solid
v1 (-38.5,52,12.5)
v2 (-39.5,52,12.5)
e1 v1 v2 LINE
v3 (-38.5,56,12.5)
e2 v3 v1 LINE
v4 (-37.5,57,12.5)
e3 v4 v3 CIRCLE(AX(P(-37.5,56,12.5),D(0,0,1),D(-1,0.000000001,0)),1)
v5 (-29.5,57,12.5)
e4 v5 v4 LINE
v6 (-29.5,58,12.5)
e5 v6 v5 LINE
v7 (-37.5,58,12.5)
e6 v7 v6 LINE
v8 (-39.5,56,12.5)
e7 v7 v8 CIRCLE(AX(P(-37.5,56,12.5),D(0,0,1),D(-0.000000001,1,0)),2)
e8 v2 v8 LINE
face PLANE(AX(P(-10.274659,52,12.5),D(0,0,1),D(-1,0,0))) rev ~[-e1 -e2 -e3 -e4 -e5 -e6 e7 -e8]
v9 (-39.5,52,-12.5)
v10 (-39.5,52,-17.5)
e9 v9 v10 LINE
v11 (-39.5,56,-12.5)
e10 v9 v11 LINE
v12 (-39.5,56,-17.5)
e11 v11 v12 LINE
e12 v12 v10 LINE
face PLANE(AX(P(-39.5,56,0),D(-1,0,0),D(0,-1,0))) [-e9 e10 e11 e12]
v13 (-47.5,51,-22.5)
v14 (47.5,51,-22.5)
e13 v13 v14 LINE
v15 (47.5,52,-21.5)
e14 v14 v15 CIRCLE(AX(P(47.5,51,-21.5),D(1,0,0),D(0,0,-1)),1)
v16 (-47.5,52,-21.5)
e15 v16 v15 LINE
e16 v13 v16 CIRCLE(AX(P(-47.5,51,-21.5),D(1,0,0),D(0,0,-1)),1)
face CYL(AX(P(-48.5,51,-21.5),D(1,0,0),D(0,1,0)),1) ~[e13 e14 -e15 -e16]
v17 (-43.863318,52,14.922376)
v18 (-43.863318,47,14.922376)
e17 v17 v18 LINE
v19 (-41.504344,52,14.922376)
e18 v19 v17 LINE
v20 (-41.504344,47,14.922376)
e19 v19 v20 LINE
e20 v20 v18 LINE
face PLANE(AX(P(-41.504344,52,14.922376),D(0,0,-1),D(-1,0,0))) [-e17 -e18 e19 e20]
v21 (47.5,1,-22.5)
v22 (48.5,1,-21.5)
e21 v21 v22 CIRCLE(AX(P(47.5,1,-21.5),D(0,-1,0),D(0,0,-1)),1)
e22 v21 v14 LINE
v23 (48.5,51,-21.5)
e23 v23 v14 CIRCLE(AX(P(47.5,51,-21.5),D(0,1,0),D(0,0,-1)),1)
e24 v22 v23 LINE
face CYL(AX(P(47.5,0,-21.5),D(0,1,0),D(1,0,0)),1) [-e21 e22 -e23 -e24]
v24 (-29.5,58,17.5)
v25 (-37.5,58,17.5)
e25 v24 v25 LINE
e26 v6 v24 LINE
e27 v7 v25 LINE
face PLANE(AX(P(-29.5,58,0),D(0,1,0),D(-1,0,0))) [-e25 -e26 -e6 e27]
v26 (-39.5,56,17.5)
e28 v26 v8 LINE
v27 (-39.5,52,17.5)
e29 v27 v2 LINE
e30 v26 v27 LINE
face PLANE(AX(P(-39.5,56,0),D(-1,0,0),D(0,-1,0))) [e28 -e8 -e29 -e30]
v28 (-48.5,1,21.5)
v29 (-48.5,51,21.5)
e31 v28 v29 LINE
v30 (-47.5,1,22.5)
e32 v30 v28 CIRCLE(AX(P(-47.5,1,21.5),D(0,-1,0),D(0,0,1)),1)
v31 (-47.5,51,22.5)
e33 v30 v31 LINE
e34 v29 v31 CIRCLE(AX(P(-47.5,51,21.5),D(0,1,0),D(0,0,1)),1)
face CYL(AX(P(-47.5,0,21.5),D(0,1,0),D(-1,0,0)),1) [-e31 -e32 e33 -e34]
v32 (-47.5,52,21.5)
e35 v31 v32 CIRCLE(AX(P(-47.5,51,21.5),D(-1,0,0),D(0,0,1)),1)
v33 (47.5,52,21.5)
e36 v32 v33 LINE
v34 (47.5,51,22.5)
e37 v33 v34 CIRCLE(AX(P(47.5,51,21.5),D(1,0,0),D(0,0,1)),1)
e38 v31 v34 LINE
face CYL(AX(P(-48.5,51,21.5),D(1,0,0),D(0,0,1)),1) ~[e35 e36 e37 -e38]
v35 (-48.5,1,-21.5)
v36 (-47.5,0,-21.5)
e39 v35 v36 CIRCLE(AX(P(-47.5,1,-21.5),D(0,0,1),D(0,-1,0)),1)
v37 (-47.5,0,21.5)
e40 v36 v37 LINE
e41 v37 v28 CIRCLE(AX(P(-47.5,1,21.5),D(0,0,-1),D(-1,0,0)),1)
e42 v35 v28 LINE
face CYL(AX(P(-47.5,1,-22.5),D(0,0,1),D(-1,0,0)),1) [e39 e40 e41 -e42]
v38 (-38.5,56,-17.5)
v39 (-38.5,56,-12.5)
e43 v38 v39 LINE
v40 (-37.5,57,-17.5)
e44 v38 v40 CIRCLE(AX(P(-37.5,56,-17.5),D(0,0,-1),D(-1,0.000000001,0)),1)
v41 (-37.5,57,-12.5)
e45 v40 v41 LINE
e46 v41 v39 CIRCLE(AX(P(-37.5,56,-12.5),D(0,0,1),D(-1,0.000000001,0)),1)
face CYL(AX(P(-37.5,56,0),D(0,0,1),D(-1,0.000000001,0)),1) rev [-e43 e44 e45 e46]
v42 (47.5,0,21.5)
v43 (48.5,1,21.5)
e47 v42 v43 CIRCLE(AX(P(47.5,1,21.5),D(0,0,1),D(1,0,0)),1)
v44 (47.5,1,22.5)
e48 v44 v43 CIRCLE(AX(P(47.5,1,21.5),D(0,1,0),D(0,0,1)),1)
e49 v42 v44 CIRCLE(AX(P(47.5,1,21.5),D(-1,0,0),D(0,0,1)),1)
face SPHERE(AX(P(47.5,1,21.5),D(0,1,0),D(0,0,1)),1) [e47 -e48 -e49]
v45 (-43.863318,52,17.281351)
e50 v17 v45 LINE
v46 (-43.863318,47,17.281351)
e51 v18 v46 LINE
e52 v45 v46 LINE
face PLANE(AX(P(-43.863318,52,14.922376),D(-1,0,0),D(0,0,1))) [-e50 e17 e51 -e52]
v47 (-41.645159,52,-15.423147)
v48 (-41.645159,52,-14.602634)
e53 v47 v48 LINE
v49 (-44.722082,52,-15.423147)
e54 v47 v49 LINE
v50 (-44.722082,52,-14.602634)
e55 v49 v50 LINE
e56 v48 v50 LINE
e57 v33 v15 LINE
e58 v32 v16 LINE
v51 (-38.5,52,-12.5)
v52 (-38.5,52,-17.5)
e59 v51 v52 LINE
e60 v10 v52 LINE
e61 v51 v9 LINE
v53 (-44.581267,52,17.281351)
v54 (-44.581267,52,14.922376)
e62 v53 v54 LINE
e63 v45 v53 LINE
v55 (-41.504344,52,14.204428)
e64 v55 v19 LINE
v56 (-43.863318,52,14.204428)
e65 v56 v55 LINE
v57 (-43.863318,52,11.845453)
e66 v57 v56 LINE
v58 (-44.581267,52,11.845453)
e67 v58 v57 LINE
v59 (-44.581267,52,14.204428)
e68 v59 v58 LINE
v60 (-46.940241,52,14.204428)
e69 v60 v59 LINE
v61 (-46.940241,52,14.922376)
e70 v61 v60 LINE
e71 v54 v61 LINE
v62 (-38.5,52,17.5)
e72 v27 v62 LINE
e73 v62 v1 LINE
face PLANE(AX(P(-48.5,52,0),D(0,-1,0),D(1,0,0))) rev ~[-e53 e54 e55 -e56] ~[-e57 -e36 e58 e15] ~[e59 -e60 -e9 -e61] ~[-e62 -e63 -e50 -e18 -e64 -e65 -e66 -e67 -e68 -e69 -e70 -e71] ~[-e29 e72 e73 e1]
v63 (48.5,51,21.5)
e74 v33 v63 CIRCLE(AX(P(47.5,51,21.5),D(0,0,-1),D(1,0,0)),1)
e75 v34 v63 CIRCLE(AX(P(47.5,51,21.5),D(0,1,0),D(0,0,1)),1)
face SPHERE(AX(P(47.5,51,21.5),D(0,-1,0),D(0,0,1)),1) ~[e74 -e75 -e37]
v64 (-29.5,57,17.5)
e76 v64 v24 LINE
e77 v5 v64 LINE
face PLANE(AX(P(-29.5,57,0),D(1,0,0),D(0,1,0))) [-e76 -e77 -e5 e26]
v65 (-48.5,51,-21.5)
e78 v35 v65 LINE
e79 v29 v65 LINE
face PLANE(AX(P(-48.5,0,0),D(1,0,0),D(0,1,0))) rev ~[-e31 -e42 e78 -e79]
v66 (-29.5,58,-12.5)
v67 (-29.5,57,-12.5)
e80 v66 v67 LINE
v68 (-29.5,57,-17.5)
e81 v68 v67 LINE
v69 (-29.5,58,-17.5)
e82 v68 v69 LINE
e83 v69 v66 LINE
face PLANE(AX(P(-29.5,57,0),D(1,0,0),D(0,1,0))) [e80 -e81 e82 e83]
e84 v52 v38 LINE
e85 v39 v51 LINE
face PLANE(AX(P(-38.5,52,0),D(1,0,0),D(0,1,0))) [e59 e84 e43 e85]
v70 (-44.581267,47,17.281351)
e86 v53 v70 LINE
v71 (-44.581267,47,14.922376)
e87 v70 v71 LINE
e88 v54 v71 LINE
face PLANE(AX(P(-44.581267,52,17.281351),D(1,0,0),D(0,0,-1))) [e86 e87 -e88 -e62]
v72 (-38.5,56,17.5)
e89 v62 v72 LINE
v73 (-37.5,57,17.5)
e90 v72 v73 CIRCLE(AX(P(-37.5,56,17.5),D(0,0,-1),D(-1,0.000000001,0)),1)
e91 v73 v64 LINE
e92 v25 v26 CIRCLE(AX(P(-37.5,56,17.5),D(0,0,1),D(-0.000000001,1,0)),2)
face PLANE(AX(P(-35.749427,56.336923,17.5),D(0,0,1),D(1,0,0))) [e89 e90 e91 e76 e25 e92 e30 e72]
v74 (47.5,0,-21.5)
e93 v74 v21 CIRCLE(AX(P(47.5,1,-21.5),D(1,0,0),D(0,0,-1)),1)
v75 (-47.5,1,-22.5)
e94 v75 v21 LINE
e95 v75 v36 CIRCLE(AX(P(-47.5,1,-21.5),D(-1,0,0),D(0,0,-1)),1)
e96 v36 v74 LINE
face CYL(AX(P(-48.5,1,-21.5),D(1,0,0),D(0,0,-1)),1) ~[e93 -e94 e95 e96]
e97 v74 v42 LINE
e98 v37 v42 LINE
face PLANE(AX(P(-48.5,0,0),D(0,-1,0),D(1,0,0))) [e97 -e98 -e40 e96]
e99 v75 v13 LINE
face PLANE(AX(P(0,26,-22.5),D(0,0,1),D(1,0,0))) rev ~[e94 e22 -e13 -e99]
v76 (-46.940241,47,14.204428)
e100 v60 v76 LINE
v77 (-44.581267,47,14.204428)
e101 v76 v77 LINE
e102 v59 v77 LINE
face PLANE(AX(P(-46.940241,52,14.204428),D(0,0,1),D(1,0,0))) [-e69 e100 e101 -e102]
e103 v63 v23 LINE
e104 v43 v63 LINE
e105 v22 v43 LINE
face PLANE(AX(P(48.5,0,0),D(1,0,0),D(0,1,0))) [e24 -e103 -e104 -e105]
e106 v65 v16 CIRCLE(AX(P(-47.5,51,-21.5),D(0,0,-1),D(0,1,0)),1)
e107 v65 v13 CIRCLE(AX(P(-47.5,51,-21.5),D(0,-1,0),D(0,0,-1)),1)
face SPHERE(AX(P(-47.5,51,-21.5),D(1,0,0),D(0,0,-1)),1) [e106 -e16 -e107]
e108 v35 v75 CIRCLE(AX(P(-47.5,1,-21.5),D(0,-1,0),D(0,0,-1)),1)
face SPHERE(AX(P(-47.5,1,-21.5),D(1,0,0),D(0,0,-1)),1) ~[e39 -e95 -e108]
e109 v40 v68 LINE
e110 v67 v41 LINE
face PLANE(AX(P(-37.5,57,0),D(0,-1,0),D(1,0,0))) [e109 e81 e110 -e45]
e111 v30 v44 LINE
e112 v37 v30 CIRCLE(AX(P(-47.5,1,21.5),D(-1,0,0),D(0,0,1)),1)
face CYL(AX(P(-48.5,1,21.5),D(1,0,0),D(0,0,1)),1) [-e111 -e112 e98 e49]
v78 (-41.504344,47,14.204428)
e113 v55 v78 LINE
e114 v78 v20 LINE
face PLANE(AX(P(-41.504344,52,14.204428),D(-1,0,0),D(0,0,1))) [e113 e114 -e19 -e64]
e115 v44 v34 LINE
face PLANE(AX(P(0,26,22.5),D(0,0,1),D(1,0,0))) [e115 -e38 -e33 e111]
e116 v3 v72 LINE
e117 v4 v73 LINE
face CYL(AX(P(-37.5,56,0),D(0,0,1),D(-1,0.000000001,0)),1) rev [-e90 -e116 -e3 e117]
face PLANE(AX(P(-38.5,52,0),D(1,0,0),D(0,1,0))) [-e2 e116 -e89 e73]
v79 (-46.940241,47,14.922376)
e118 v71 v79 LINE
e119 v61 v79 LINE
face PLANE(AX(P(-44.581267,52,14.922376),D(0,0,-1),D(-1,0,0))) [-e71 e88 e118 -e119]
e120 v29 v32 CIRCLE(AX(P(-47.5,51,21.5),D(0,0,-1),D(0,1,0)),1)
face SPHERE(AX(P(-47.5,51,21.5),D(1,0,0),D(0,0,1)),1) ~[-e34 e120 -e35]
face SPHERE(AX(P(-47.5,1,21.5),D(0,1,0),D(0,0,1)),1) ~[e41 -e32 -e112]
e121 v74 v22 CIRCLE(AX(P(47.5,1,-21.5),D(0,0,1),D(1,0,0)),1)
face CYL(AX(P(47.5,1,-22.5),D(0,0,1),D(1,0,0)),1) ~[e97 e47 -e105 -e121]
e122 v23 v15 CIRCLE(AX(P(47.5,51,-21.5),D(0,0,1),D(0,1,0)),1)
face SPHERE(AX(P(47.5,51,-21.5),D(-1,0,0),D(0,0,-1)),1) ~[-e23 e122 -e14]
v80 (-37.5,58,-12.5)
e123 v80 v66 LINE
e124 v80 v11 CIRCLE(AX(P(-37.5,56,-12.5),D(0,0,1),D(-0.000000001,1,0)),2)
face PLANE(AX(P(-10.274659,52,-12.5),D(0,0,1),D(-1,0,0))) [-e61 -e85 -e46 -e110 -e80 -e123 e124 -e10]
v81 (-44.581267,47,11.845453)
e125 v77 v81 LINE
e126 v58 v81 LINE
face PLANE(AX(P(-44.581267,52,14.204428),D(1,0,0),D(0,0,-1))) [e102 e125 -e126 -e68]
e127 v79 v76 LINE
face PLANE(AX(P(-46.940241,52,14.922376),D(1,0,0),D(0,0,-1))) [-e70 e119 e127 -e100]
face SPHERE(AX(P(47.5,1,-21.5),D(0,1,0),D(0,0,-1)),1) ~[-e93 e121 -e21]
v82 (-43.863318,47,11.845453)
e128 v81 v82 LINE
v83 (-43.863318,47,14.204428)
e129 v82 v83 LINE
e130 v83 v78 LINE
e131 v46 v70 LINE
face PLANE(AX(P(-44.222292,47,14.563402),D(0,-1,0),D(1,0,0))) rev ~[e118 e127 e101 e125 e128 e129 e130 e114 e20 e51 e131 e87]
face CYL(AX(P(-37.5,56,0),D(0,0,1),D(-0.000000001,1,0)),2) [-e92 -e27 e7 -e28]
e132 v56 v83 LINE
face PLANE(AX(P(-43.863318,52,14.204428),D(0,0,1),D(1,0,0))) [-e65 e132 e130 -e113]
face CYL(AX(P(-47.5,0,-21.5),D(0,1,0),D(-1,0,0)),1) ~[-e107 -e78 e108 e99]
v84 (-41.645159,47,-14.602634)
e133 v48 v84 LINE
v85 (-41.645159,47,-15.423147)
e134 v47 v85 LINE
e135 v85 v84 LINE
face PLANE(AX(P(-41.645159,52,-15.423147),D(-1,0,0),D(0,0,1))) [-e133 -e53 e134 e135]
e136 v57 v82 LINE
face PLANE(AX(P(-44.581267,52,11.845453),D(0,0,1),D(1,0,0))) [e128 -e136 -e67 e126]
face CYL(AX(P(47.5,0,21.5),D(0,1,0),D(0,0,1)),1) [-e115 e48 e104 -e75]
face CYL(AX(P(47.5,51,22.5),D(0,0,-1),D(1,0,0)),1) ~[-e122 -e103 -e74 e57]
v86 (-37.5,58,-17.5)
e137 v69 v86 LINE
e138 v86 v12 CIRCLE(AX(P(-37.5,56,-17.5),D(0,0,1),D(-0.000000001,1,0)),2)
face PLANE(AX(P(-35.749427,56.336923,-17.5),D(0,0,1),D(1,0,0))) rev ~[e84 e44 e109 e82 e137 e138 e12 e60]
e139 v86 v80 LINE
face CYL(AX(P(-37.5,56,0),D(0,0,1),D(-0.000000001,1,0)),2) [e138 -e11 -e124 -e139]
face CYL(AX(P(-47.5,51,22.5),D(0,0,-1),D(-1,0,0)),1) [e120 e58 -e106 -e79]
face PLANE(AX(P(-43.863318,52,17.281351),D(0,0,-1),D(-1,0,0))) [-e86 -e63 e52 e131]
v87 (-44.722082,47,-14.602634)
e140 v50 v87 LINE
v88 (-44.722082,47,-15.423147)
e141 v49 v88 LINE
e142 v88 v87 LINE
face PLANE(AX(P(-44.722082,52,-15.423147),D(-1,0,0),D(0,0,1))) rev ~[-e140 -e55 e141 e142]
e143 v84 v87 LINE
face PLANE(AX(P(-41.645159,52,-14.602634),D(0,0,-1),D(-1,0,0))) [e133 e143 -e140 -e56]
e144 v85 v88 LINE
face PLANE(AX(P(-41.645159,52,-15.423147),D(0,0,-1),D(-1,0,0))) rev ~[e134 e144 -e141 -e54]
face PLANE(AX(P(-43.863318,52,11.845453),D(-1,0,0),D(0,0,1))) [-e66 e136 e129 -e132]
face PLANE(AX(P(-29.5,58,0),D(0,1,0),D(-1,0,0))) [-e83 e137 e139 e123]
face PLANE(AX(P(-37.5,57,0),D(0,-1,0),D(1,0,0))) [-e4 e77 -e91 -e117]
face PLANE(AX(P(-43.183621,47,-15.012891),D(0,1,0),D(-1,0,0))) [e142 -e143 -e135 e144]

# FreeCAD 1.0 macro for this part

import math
import FreeCAD as App
import Part
import Sketcher

V = App.Vector
Q = App.Units.Quantity


def add_polygon(sketch, points):
    """Adds a closed chain of lines whose ends are joined by coincident constraints."""
    first, n = sketch.GeometryCount, len(points)
    for a, b in zip(points, points[1:] + points[:1]):
        sketch.addGeometry(Part.LineSegment(App.Vector(*a, 0), App.Vector(*b, 0)), False)
    for i in range(n):
        sketch.addConstraint(Sketcher.Constraint("Coincident", first + i, 2, first + (i + 1) % n, 1))

doc = App.newDocument("Part")
body = doc.addObject("PartDesign::Body", "Body")

sketch1 = doc.addObject("Sketcher::SketchObject", "Sketch")
body.addObject(sketch1)
sketch1.AttachmentSupport = (doc.XY_Plane, [""])
sketch1.MapMode = "FlatFace"
add_polygon(sketch1, [(-48, 52), (-48, 0), (48, 0), (48, 52)])
sketch1.addConstraint(Sketcher.Constraint("Vertical", 0))
sketch1.addConstraint(Sketcher.Constraint("Horizontal", 1))
sketch1.addConstraint(Sketcher.Constraint("Vertical", 2))
sketch1.addConstraint(Sketcher.Constraint("Horizontal", 3))
sketch1.addConstraint(Sketcher.Constraint("Symmetric", 0, 2, 1, 2, -1, 1))
sketch1.addConstraint(Sketcher.Constraint("DistanceX", 1, 1, 1, 2, Q("97 mm")))
sketch1.addConstraint(Sketcher.Constraint("DistanceY", 0, 2, 0, 1, Q("52 mm")))
pad1 = doc.addObject("PartDesign::Pad", "Pad")
body.addObject(pad1)
pad1.Profile = sketch1
pad1.Length = 45
pad1.Midplane = True
doc.recompute()

fillet = doc.addObject("PartDesign::Fillet", "Fillet")
body.addObject(fillet)
fillet.Base = (pad1, ["Edge1"])
fillet.UseAllEdges = True
fillet.Radius = 1

sketch2 = doc.addObject("Sketcher::SketchObject", "Sketch001")
body.addObject(sketch2)
sketch2.AttachmentSupport = (doc.XY_Plane, [""])
sketch2.MapMode = "FlatFace"
sketch2.addGeometry(Part.LineSegment(V(-38.5, 52, 0), V(-38.5, 56, 0)), False)
sketch2.addGeometry(Part.ArcOfCircle(Part.Circle(V(-37.5, 56, 0), V(0, 0, 1), 1), math.radians(90), math.radians(180)), False)
sketch2.addGeometry(Part.LineSegment(V(-37.5, 57, 0), V(-29.5, 57, 0)), False)
sketch2.addGeometry(Part.LineSegment(V(-29.5, 57, 0), V(-29.5, 58, 0)), False)
sketch2.addGeometry(Part.LineSegment(V(-29.5, 58, 0), V(-37.5, 58, 0)), False)
sketch2.addGeometry(Part.ArcOfCircle(Part.Circle(V(-37.5, 56, 0), V(0, 0, 1), 2), math.radians(90), math.radians(180)), False)
sketch2.addGeometry(Part.LineSegment(V(-39.5, 56, 0), V(-39.5, 52, 0)), False)
sketch2.addGeometry(Part.LineSegment(V(-39.5, 52, 0), V(-38.5, 52, 0)), False)
sketch2.addConstraint(Sketcher.Constraint("Tangent", 0, 2, 1, 2))
sketch2.addConstraint(Sketcher.Constraint("Tangent", 1, 1, 2, 1))
sketch2.addConstraint(Sketcher.Constraint("Coincident", 2, 2, 3, 1))
sketch2.addConstraint(Sketcher.Constraint("Coincident", 3, 2, 4, 1))
sketch2.addConstraint(Sketcher.Constraint("Tangent", 4, 2, 5, 1))
sketch2.addConstraint(Sketcher.Constraint("Tangent", 5, 2, 6, 1))
sketch2.addConstraint(Sketcher.Constraint("Coincident", 6, 2, 7, 1))
sketch2.addConstraint(Sketcher.Constraint("Coincident", 7, 2, 0, 1))
sketch2.addConstraint(Sketcher.Constraint("Vertical", 0))
sketch2.addConstraint(Sketcher.Constraint("Horizontal", 2))
sketch2.addConstraint(Sketcher.Constraint("Vertical", 3))
sketch2.addConstraint(Sketcher.Constraint("Horizontal", 4))
sketch2.addConstraint(Sketcher.Constraint("Vertical", 6))
sketch2.addConstraint(Sketcher.Constraint("Horizontal", 7))
sketch2.addConstraint(Sketcher.Constraint("Coincident", 5, 3, 1, 3))
sketch2.addConstraint(Sketcher.Constraint("Radius", 1, Q("1 mm")))
sketch2.addConstraint(Sketcher.Constraint("Radius", 5, Q("2 mm")))
sketch2.addConstraint(Sketcher.Constraint("DistanceX", 2, 1, 2, 2, Q("8 mm")))
sketch2.addConstraint(Sketcher.Constraint("DistanceY", 0, 1, 0, 2, Q("4 mm")))
sketch2.addConstraint(Sketcher.Constraint("DistanceY", -1, 1, 1, 3, Q("56 mm")))
sketch2.addConstraint(Sketcher.Constraint("DistanceX", 1, 3, -1, 1, Q("37.5 mm")))
pad2 = doc.addObject("PartDesign::Pad", "Pad001")
body.addObject(pad2)
pad2.Profile = sketch2
pad2.Length = 35
pad2.Midplane = True

sketch3 = doc.addObject("Sketcher::SketchObject", "Sketch002")
body.addObject(sketch3)
sketch3.AttachmentSupport = (doc.XZ_Plane, [""])
sketch3.MapMode = "FlatFace"
sketch3.AttachmentOffset = App.Placement(V(0, 0, -52), App.Rotation())
add_polygon(sketch3, [(-10, 12), (-10, -12), (-44, -12), (-44, 12)])
sketch3.addConstraint(Sketcher.Constraint("Vertical", 0))
sketch3.addConstraint(Sketcher.Constraint("Horizontal", 1))
sketch3.addConstraint(Sketcher.Constraint("Vertical", 2))
sketch3.addConstraint(Sketcher.Constraint("Horizontal", 3))
sketch3.addConstraint(Sketcher.Constraint("DistanceY", 0, 2, 0, 1, Q("25 mm")))
sketch3.addConstraint(Sketcher.Constraint("DistanceY", 0, 2, -1, 1, Q("12.5 mm")))
sketch3.addConstraint(Sketcher.Constraint("DistanceX", 1, 2, 1, 1, Q("33.983716 mm")))
sketch3.addConstraint(Sketcher.Constraint("DistanceX", 0, 2, -1, 1, Q("10.274659 mm")))
pocket1 = doc.addObject("PartDesign::Pocket", "Pocket")
body.addObject(pocket1)
pocket1.Profile = sketch3
pocket1.Length = 35

sketch4 = doc.addObject("Sketcher::SketchObject", "Sketch003")
body.addObject(sketch4)
sketch4.AttachmentSupport = (doc.XZ_Plane, [""])
sketch4.MapMode = "FlatFace"
sketch4.AttachmentOffset = App.Placement(V(0, 0, -52), App.Rotation())
add_polygon(sketch4, [(-43.9, 17.3), (-43.9, 14.9), (-41.5, 14.9), (-41.5, 14.2), (-43.9, 14.2), (-43.9, 11.8), (-44.6, 11.8), (-44.6, 14.2), (-46.9, 14.2), (-46.9, 14.9), (-44.6, 14.9), (-44.6, 17.3)])
add_polygon(sketch4, [(-41.6, -14.6), (-41.6, -15.4), (-44.7, -15.4), (-44.7, -14.6)])
sketch4.addConstraint(Sketcher.Constraint("Vertical", 0))
sketch4.addConstraint(Sketcher.Constraint("Horizontal", 1))
sketch4.addConstraint(Sketcher.Constraint("Vertical", 2))
sketch4.addConstraint(Sketcher.Constraint("Horizontal", 3))
sketch4.addConstraint(Sketcher.Constraint("Vertical", 4))
sketch4.addConstraint(Sketcher.Constraint("Horizontal", 5))
sketch4.addConstraint(Sketcher.Constraint("Vertical", 6))
sketch4.addConstraint(Sketcher.Constraint("Horizontal", 7))
sketch4.addConstraint(Sketcher.Constraint("Vertical", 8))
sketch4.addConstraint(Sketcher.Constraint("Horizontal", 9))
sketch4.addConstraint(Sketcher.Constraint("Vertical", 10))
sketch4.addConstraint(Sketcher.Constraint("Horizontal", 11))
sketch4.addConstraint(Sketcher.Constraint("Vertical", 12))
sketch4.addConstraint(Sketcher.Constraint("Horizontal", 13))
sketch4.addConstraint(Sketcher.Constraint("Vertical", 14))
sketch4.addConstraint(Sketcher.Constraint("Horizontal", 15))
sketch4.addConstraint(Sketcher.Constraint("Horizontal", 3, 2, 6, 2))
sketch4.addConstraint(Sketcher.Constraint("Horizontal", 1, 2, 8, 2))
sketch4.addConstraint(Sketcher.Constraint("Vertical", 0, 2, 3, 2))
sketch4.addConstraint(Sketcher.Constraint("Vertical", 6, 2, 9, 2))
sketch4.addConstraint(Sketcher.Constraint("Equal", 3, 7))
sketch4.addConstraint(Sketcher.Constraint("Equal", 9, 0))
sketch4.addConstraint(Sketcher.Constraint("Equal", 11, 2))
sketch4.addConstraint(Sketcher.Constraint("Equal", 0, 4))
sketch4.addConstraint(Sketcher.Constraint("DistanceX", 5, 2, 5, 1, Q("0.717949 mm")))
sketch4.addConstraint(Sketcher.Constraint("DistanceY", 12, 2, 4, 2, Q("27.2686 mm")))
sketch4.addConstraint(Sketcher.Constraint("DistanceX", 1, 1, 1, 2, Q("2.358974 mm")))
sketch4.addConstraint(Sketcher.Constraint("DistanceX", 13, 2, 13, 1, Q("3.076923 mm")))
sketch4.addConstraint(Sketcher.Constraint("DistanceY", 12, 2, 12, 1, Q("0.820513 mm")))
sketch4.addConstraint(Sketcher.Constraint("DistanceX", 7, 2, -1, 1, Q("46.940241 mm")))
sketch4.addConstraint(Sketcher.Constraint("DistanceY", -1, 1, 10, 2, Q("17.281351 mm")))
sketch4.addConstraint(Sketcher.Constraint("DistanceX", 12, 2, -1, 1, Q("41.645159 mm")))
pocket2 = doc.addObject("PartDesign::Pocket", "Pocket001")
body.addObject(pocket2)
pocket2.Profile = sketch4
pocket2.Length = 5
pocket2.Reversed = True

doc.recompute()
